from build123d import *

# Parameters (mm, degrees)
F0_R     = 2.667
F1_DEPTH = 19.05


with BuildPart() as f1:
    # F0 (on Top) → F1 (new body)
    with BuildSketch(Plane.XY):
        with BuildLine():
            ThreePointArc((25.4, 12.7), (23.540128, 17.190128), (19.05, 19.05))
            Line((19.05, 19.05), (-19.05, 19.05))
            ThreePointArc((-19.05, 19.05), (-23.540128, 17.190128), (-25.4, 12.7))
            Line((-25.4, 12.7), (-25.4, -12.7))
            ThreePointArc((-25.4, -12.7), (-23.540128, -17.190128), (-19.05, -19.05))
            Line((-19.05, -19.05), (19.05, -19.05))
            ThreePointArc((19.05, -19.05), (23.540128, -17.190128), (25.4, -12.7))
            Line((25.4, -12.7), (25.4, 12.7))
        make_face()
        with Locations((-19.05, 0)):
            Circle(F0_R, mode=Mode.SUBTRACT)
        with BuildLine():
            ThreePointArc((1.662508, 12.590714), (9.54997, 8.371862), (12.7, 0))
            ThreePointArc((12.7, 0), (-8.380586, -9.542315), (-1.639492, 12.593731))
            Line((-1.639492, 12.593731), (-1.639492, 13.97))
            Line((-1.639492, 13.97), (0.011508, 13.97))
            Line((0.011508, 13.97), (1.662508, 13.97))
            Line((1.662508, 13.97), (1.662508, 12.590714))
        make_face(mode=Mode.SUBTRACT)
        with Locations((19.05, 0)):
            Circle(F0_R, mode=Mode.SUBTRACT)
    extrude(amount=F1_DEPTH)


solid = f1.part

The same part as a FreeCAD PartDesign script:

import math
import FreeCAD as App
import Part
import Sketcher
Q = App.Units.Quantity

doc = App.newDocument("Part")
body = doc.addObject("PartDesign::Body", "Body")

# Sketch on XY plane
sketch1 = body.newObject("Sketcher::SketchObject", "Sketch")
sketch1.AttachmentSupport = (doc.getObject("XY_Plane"), [""])
sketch1.MapMode = "FlatFace"
sketch1.addGeometry(Part.ArcOfCircle(Part.Circle(App.Vector(19.05, 12.7, 0), App.Vector(0, 0, 1), 6.35), math.radians(0.000002), math.radians(89.999998)), False)
sketch1.addGeometry(Part.LineSegment(App.Vector(19.05, 19.05, 0), App.Vector(-19.05, 19.05, 0)), False)
sketch1.addGeometry(Part.ArcOfCircle(Part.Circle(App.Vector(-19.05, 12.7, 0), App.Vector(0, 0, 1), 6.35), math.radians(90.000002), math.radians(179.999998)), False)
sketch1.addGeometry(Part.LineSegment(App.Vector(-25.4, 12.7, 0), App.Vector(-25.4, -12.7, 0)), False)
sketch1.addGeometry(Part.ArcOfCircle(Part.Circle(App.Vector(-19.05, -12.7, 0), App.Vector(0, 0, 1), 6.35), math.radians(-179.999998), math.radians(-90.000002)), False)
sketch1.addGeometry(Part.LineSegment(App.Vector(-19.05, -19.05, 0), App.Vector(19.05, -19.05, 0)), False)
sketch1.addGeometry(Part.ArcOfCircle(Part.Circle(App.Vector(19.05, -12.7, 0), App.Vector(0, 0, 1), 6.35), math.radians(-89.999998), math.radians(-0.000002)), False)
sketch1.addGeometry(Part.LineSegment(App.Vector(25.4, -12.7, 0), App.Vector(25.4, 12.7, 0)), False)
sketch1.addGeometry(Part.Circle(App.Vector(-19.05, 0, 0), App.Vector(0, 0, 1), 2.667), False)
sketch1.addGeometry(Part.Circle(App.Vector(19.05, 0, 0), App.Vector(0, 0, 1), 2.667), False)
sketch1.addGeometry(Part.LineSegment(App.Vector(1.662508, 13.97, 0), App.Vector(1.662508, 12.590714, 0)), False)
sketch1.addGeometry(Part.ArcOfCircle(Part.Circle(App.Vector(-0.000001, 0, 0), App.Vector(0, 0, 1), 12.700001), math.radians(0.000001), math.radians(82.478039)), False)
sketch1.addGeometry(Part.ArcOfCircle(Part.Circle(App.Vector(0, 0, 0), App.Vector(0, 0, 1), 12.7), math.radians(97.417234), math.radians(360)), False)
sketch1.addGeometry(Part.LineSegment(App.Vector(-1.639492, 12.593731, 0), App.Vector(-1.639492, 13.97, 0)), False)
sketch1.addGeometry(Part.LineSegment(App.Vector(-1.639492, 13.97, 0), App.Vector(1.662508, 13.97, 0)), False)
sketch1.addConstraint(Sketcher.Constraint("Tangent", 0, 2, 1, 1))
sketch1.addConstraint(Sketcher.Constraint("Tangent", 1, 2, 2, 1))
sketch1.addConstraint(Sketcher.Constraint("Tangent", 2, 2, 3, 1))
sketch1.addConstraint(Sketcher.Constraint("Tangent", 3, 2, 4, 1))
sketch1.addConstraint(Sketcher.Constraint("Tangent", 4, 2, 5, 1))
sketch1.addConstraint(Sketcher.Constraint("Tangent", 5, 2, 6, 1))
sketch1.addConstraint(Sketcher.Constraint("Tangent", 6, 2, 7, 1))
sketch1.addConstraint(Sketcher.Constraint("Tangent", 7, 2, 0, 1))
sketch1.addConstraint(Sketcher.Constraint("Coincident", 10, 2, 11, 2))
sketch1.addConstraint(Sketcher.Constraint("Tangent", 11, 1, 12, 2))
sketch1.addConstraint(Sketcher.Constraint("Coincident", 12, 1, 13, 1))
sketch1.addConstraint(Sketcher.Constraint("Coincident", 13, 2, 14, 1))
sketch1.addConstraint(Sketcher.Constraint("Coincident", 14, 2, 10, 1))
sketch1.addConstraint(Sketcher.Constraint("Horizontal", 1))
sketch1.addConstraint(Sketcher.Constraint("Vertical", 3))
sketch1.addConstraint(Sketcher.Constraint("Horizontal", 5))
sketch1.addConstraint(Sketcher.Constraint("Vertical", 7))
sketch1.addConstraint(Sketcher.Constraint("Vertical", 10))
sketch1.addConstraint(Sketcher.Constraint("Vertical", 13))
sketch1.addConstraint(Sketcher.Constraint("Horizontal", 14))
sketch1.addConstraint(Sketcher.Constraint("Coincident", 11, 3, -1, 1))
sketch1.addConstraint(Sketcher.Constraint("Equal", 0, 2))
sketch1.addConstraint(Sketcher.Constraint("Equal", 2, 4))
sketch1.addConstraint(Sketcher.Constraint("Equal", 4, 6))
sketch1.addConstraint(Sketcher.Constraint("Equal", 8, 9))
sketch1.addConstraint(Sketcher.Constraint("Equal", 11, 12))
sketch1.addConstraint(Sketcher.Constraint("Symmetric", 0, 3, 4, 3, -1, 1))
sketch1.addConstraint(Sketcher.Constraint("Symmetric", 8, 3, 9, 3, -1, 1))
sketch1.addConstraint(Sketcher.Constraint("PointOnObject", 8, 3, -1))
sketch1.addConstraint(Sketcher.Constraint("PointOnObject", 11, 1, -1))
sketch1.addConstraint(Sketcher.Constraint("Vertical", 4, 3, 8, 3))
sketch1.addConstraint(Sketcher.Constraint("Radius", 11, Q("0.5 in")))
sketch1.addConstraint(Sketcher.Constraint("Diameter", 8, Q("0.21 in")))
sketch1.addConstraint(Sketcher.Constraint("DistanceY", 3, 2, 3, 1, Q("1 in")))
sketch1.addConstraint(Sketcher.Constraint("Radius", 0, Q("0.25 in")))
sketch1.addConstraint(Sketcher.Constraint("DistanceX", 1, 2, 1, 1, Q("1.5 in")))
sketch1.addConstraint(Sketcher.Constraint("DistanceX", 14, 1, 14, 2, Q("0.13 in")))
sketch1.addConstraint(Sketcher.Constraint("DistanceY", -1, 1, 13, 2, Q("0.55 in")))
sketch1.addConstraint(Sketcher.Constraint("DistanceY", 13, 1, 13, 2, 1.376269))
pad1 = body.newObject("PartDesign::Pad", "Pad")
pad1.Profile = sketch1
pad1.Length = Q("0.75 in")

doc.recompute()
